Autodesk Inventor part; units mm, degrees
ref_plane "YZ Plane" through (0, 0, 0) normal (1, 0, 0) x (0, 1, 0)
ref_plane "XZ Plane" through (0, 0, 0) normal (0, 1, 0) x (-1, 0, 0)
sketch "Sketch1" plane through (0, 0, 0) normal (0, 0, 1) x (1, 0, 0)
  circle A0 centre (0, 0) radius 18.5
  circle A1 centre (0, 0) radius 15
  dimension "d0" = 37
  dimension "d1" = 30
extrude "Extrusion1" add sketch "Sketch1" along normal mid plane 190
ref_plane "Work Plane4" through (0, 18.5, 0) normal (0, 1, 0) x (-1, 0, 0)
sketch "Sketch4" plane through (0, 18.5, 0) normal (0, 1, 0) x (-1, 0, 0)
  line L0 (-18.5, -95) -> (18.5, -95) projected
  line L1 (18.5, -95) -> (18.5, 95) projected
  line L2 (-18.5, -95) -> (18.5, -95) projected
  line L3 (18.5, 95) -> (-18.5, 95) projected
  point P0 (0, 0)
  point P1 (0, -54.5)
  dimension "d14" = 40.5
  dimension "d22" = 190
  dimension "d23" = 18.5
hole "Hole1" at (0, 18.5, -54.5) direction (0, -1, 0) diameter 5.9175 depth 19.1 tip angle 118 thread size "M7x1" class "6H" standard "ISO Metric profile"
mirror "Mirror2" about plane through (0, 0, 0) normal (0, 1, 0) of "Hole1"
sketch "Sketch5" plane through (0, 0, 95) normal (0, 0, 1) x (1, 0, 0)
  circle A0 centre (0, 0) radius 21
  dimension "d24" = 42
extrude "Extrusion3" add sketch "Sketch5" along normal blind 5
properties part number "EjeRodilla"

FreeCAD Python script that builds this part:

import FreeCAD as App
import Part
import Sketcher
Q = App.Units.Quantity

doc = App.newDocument("Part")
body = doc.addObject("PartDesign::Body", "Body")

# Sketch on XY plane
sketch1 = body.newObject("Sketcher::SketchObject", "Sketch")
sketch1.AttachmentSupport = (doc.getObject("XY_Plane"), [""])
sketch1.MapMode = "FlatFace"
sketch1.addGeometry(Part.Circle(App.Vector(0, 0, 0), App.Vector(0, 0, 1), 18), False)
sketch1.addGeometry(Part.Circle(App.Vector(0, 0, 0), App.Vector(0, 0, 1), 15), False)
sketch1.addConstraint(Sketcher.Constraint("Coincident", 0, 3, -1, 1))
sketch1.addConstraint(Sketcher.Constraint("Coincident", 1, 3, -1, 1))
sketch1.addConstraint(Sketcher.Constraint("Diameter", 0, Q("37 mm")))
sketch1.addConstraint(Sketcher.Constraint("Diameter", 1, Q("30 mm")))
pad1 = body.newObject("PartDesign::Pad", "Pad")
pad1.Profile = sketch1
pad1.Length = 190
pad1.Midplane = True

# Sketch on XZ plane
sketch2 = body.newObject("Sketcher::SketchObject", "Sketch001")
sketch2.AttachmentSupport = (doc.getObject("XZ_Plane"), [""])
sketch2.MapMode = "FlatFace"
sketch2.AttachmentOffset = App.Placement(App.Vector(0, 0, -18.5), App.Rotation())
sketch2.addGeometry(Part.Circle(App.Vector(0, -54.5, 0), App.Vector(0, 0, 1), 3), False)
sketch2.addConstraint(Sketcher.Constraint("PointOnObject", 0, 3, -2))
sketch2.addConstraint(Sketcher.Constraint("Diameter", 0, Q("5.9175 mm")))
sketch2.addConstraint(Sketcher.Constraint("DistanceY", 0, 3, -1, 1, Q("54.5 mm")))
doc.recompute()
hole = body.newObject("PartDesign::Hole", "Hole")
hole.Profile = sketch2
hole.ThreadType = "None"
hole.Diameter = 5.9175
hole.DepthType = "Dimension"
hole.Depth = 19.1
hole.DrillPoint = "Angled"
hole.DrillPointAngle = 118
hole.Reversed = True
doc.recompute()

mirrored = body.newObject("PartDesign::Mirrored", "Mirrored")
mirrored.Originals = [hole]
mirrored.MirrorPlane = (doc.getObject("XZ_Plane"), [""])
body.Tip = mirrored

# Sketch on XY plane
sketch3 = body.newObject("Sketcher::SketchObject", "Sketch002")
sketch3.AttachmentSupport = (doc.getObject("XY_Plane"), [""])
sketch3.MapMode = "FlatFace"
sketch3.AttachmentOffset = App.Placement(App.Vector(0, 0, 95), App.Rotation())
sketch3.addGeometry(Part.Circle(App.Vector(0, 0, 0), App.Vector(0, 0, 1), 21), False)
sketch3.addConstraint(Sketcher.Constraint("Coincident", 0, 3, -1, 1))
sketch3.addConstraint(Sketcher.Constraint("Diameter", 0, Q("42 mm")))
pad2 = body.newObject("PartDesign::Pad", "Pad001")
pad2.Profile = sketch3
pad2.Length = 5

doc.recompute()
